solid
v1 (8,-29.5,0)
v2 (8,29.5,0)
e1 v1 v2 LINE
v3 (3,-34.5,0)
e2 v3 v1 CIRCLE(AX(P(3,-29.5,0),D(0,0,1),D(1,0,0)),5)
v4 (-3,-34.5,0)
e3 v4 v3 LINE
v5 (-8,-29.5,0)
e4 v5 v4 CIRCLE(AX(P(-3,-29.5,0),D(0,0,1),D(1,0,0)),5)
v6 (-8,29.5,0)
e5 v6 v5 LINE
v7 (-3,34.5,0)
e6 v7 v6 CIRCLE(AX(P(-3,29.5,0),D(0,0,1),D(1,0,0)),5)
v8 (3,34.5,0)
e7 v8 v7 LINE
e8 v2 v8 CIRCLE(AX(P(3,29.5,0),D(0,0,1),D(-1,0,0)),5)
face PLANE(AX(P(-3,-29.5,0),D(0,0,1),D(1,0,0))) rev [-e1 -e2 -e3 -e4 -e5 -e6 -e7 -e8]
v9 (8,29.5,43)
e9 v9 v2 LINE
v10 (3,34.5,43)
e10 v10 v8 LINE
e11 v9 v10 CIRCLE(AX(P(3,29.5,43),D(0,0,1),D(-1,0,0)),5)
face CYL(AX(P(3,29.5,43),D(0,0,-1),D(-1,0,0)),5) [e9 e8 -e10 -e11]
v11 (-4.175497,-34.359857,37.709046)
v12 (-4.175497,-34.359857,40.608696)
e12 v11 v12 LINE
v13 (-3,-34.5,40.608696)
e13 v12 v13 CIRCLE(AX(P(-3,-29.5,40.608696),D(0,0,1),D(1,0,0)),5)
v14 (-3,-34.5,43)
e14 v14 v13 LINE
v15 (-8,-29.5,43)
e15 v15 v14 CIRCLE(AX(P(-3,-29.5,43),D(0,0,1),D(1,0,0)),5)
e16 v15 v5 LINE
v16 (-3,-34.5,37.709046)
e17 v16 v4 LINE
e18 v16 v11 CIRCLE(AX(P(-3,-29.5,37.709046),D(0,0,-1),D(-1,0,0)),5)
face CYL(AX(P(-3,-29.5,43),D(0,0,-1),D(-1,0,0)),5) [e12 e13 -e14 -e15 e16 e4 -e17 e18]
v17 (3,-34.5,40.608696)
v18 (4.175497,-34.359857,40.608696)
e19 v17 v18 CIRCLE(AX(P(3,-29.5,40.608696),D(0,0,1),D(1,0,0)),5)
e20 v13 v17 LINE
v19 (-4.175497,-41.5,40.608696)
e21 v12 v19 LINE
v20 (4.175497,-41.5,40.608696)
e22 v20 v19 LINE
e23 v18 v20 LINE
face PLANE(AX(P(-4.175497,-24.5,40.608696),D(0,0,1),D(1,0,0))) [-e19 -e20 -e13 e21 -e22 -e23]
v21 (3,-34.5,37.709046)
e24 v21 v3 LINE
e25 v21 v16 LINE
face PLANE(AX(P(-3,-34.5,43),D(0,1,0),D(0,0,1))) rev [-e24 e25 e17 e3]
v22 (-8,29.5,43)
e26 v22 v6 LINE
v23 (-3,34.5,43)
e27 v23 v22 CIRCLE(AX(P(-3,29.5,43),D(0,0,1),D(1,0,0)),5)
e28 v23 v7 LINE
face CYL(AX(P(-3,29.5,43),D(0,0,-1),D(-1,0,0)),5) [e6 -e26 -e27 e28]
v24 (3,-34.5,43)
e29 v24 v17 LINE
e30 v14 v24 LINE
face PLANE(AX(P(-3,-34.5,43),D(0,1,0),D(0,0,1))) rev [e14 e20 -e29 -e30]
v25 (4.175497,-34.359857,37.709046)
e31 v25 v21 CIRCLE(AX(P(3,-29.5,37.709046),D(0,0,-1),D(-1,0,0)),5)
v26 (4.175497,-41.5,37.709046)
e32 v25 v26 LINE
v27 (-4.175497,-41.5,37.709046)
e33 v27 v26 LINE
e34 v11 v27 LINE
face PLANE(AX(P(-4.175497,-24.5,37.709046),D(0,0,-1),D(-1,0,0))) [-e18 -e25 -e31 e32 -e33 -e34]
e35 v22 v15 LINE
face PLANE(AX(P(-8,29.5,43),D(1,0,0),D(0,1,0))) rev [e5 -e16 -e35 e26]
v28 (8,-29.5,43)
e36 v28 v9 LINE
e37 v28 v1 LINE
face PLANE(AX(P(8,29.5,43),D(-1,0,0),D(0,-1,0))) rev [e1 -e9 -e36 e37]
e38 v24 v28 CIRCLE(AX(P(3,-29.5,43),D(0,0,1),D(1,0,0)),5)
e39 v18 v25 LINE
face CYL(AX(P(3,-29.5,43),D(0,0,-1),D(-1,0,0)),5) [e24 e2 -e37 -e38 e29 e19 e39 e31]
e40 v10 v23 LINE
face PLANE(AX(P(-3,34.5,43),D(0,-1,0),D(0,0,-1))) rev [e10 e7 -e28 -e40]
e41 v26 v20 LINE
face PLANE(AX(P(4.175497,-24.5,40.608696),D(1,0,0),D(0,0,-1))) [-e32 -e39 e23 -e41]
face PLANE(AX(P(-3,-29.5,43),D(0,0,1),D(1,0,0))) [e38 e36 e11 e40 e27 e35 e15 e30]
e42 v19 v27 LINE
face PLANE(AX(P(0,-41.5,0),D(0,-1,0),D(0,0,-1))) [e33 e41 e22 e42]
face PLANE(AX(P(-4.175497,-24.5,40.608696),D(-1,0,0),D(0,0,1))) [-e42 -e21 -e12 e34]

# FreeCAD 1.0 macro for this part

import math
import FreeCAD as App
import Part
import Sketcher
from FreeCAD import Vector


def add_polygon(sketch, points):
    """Adds a closed chain of lines whose ends are joined by coincident constraints."""
    first, n = sketch.GeometryCount, len(points)
    for a, b in zip(points, points[1:] + points[:1]):
        sketch.addGeometry(Part.LineSegment(App.Vector(*a, 0), App.Vector(*b, 0)), False)
    for i in range(n):
        sketch.addConstraint(Sketcher.Constraint("Coincident", first + i, 2, first + (i + 1) % n, 1))

doc = App.newDocument("Part")
params = doc.addObject("Spreadsheet::Sheet", "Params")
for row, (alias, value) in enumerate([
    ("sketch1_radius", "5 mm"),
    ("sketch1_width", "6 mm"),
    ("sketch1_height", "59 mm"),
    ("pad1_length", "43 mm"),
    ("pad2_length", "7 mm"),
    ("pad2_length2", "10 mm"),
], start=1):
    params.set(f"A{row}", alias)
    params.set(f"B{row}", "=" + value)
    params.setAlias(f"B{row}", alias)

body = doc.addObject("PartDesign::Body", "Body")

sketch1 = body.newObject("Sketcher::SketchObject", "Sketch")
sketch1.AttachmentSupport = (doc.getObject("XY_Plane"), [""])
sketch1.MapMode = "FlatFace"
sketch1.addGeometry([
    Part.LineSegment(Vector(3, 34, 0), Vector(-3, 34, 0)),
    Part.ArcOfCircle(Part.Circle(Vector(-3, 30, 0), Vector(0, 0, 1), 5), math.radians(90), math.radians(180)),
    Part.LineSegment(Vector(-8, 30, 0), Vector(-8, -30, 0)),
    Part.ArcOfCircle(Part.Circle(Vector(-3, -30, 0), Vector(0, 0, 1), 5), math.radians(180), math.radians(270)),
    Part.LineSegment(Vector(-3, -34, 0), Vector(3, -34, 0)),
    Part.ArcOfCircle(Part.Circle(Vector(3, -30, 0), Vector(0, 0, 1), 5), math.radians(-90), math.radians(0)),
    Part.LineSegment(Vector(8, -30, 0), Vector(8, 30, 0)),
    Part.ArcOfCircle(Part.Circle(Vector(3, 30, 0), Vector(0, 0, 1), 5), math.radians(0), math.radians(90)),
], False)
sketch1.addConstraint([
    Sketcher.Constraint("Tangent", 0, 2, 1, 1),
    Sketcher.Constraint("Tangent", 1, 2, 2, 1),
    Sketcher.Constraint("Tangent", 2, 2, 3, 1),
    Sketcher.Constraint("Tangent", 3, 2, 4, 1),
    Sketcher.Constraint("Tangent", 4, 2, 5, 1),
    Sketcher.Constraint("Tangent", 5, 2, 6, 1),
    Sketcher.Constraint("Tangent", 6, 2, 7, 1),
    Sketcher.Constraint("Tangent", 7, 2, 0, 1),
    Sketcher.Constraint("Horizontal", 0),
    Sketcher.Constraint("Vertical", 2),
    Sketcher.Constraint("Horizontal", 4),
    Sketcher.Constraint("Vertical", 6),
    Sketcher.Constraint("Equal", 1, 3),
    Sketcher.Constraint("Equal", 3, 5),
    Sketcher.Constraint("Equal", 5, 7),
    Sketcher.Constraint("Symmetric", 1, 3, 5, 3, -1, 1),
    Sketcher.Constraint("Radius", 1, 5.0),
    Sketcher.Constraint("DistanceX", 0, 2, 0, 1, 6.0),
    Sketcher.Constraint("DistanceY", 2, 2, 2, 1, 59.0),
])
sketch1.setExpression("Constraints[16]", "Params.sketch1_radius")
sketch1.setExpression("Constraints[17]", "Params.sketch1_width")
sketch1.setExpression("Constraints[18]", "Params.sketch1_height")
pad1 = body.newObject("PartDesign::Pad", "Pad")
pad1.Profile = sketch1
pad1.setExpression("Length", "Params.pad1_length")

sketch2 = body.newObject("Sketcher::SketchObject", "Sketch001")
sketch2.AttachmentSupport = (doc.getObject("XZ_Plane"), [""])
sketch2.MapMode = "FlatFace"
sketch2.AttachmentOffset = App.Placement(Vector(0, 0, 34.5), App.Rotation())
add_polygon(sketch2, [(-4.2, 40.6), (-4.2, 37.7), (4.2, 37.7), (4.2, 40.6)])
sketch2.addConstraint([
    Sketcher.Constraint("Vertical", 0),
    Sketcher.Constraint("Horizontal", 1),
    Sketcher.Constraint("Vertical", 2),
    Sketcher.Constraint("Horizontal", 3),
    Sketcher.Constraint("DistanceY", 0, 2, 0, 1, 2.89965),
    Sketcher.Constraint("DistanceX", 1, 1, 1, 2, 8.350993),
    Sketcher.Constraint("DistanceX", 0, 2, -1, 1, 4.175497),
    Sketcher.Constraint("DistanceY", -1, 1, 0, 2, 37.709046),
])
pad2 = body.newObject("PartDesign::Pad", "Pad001")
pad2.Profile = sketch2
pad2.Type = "TwoLengths"
pad2.setExpression("Length", "Params.pad2_length")
pad2.setExpression("Length2", "Params.pad2_length2")

doc.recompute()
